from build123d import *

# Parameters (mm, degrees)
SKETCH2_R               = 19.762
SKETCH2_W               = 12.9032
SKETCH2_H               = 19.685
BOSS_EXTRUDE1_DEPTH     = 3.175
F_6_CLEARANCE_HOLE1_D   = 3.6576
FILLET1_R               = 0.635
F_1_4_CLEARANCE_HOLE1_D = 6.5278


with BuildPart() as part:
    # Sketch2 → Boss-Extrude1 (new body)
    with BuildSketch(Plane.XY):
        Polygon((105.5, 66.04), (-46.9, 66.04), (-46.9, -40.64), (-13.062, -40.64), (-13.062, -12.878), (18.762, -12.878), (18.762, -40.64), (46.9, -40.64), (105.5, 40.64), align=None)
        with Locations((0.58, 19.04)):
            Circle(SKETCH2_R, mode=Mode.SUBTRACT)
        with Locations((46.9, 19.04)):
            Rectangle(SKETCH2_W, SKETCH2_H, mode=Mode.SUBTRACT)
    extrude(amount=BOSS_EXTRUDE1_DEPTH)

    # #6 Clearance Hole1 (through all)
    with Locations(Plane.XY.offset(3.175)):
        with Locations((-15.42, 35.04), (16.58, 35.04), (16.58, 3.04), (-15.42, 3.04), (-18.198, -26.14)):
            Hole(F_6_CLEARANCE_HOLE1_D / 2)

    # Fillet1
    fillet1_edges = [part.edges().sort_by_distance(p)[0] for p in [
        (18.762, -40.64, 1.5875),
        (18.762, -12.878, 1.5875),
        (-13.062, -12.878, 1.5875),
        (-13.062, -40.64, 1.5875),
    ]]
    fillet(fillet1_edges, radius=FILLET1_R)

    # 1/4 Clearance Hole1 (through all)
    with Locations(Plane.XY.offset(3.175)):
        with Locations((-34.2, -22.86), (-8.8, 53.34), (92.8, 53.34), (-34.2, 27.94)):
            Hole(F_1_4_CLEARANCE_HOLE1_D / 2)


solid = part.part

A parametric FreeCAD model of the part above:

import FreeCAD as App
import Part
import Sketcher
from FreeCAD import Vector
Q = App.Units.Quantity


def edges_at(feature, points):
    """Names of the edges that pass closest to the given points."""
    edges = feature.Shape.Edges
    near = lambda p: min(range(len(edges)), key=lambda i: edges[i].distToShape(Part.Vertex(*p))[0])
    return sorted({f"Edge{near(p) + 1}" for p in points})


def add_polygon(sketch, points):
    """Adds a closed chain of lines whose ends are joined by coincident constraints."""
    first, n = sketch.GeometryCount, len(points)
    for a, b in zip(points, points[1:] + points[:1]):
        sketch.addGeometry(Part.LineSegment(App.Vector(*a, 0), App.Vector(*b, 0)), False)
    for i in range(n):
        sketch.addConstraint(Sketcher.Constraint("Coincident", first + i, 2, first + (i + 1) % n, 1))

doc = App.newDocument("Part")
body = doc.addObject("PartDesign::Body", "Body")

# Sketch on XY plane
sketch1 = doc.addObject("Sketcher::SketchObject", "Sketch")
body.addObject(sketch1)
sketch1.AttachmentSupport = (doc.XY_Plane, [""])
sketch1.MapMode = "FlatFace"
add_polygon(sketch1, [(105.5, 66.04), (-46.9, 66.04), (-46.9, -40.64), (-13.062, -40.64), (-13.062, -12.878), (18.762, -12.878), (18.762, -40.64), (46.9, -40.64), (105.5, 40.64)])  # lines 0-8
sketch1.addGeometry(Part.Circle(Vector(0.58, 19.04, 0), Vector(0, 0, 1), 19.762), False)  # 9
add_polygon(sketch1, [(53.3516, 9.1975), (40.4484, 9.1975), (40.4484, 28.8825), (53.3516, 28.8825)])  # lines 10-13
sketch1.addConstraint([
    Sketcher.Constraint("Horizontal", 0),
    Sketcher.Constraint("Vertical", 1),
    Sketcher.Constraint("Horizontal", 2),
    Sketcher.Constraint("Vertical", 3),
    Sketcher.Constraint("Horizontal", 4),
    Sketcher.Constraint("Vertical", 5),
    Sketcher.Constraint("Horizontal", 6),
    Sketcher.Constraint("Vertical", 8),
    Sketcher.Constraint("Horizontal", 10),
    Sketcher.Constraint("Vertical", 11),
    Sketcher.Constraint("Horizontal", 12),
    Sketcher.Constraint("Vertical", 13),
    Sketcher.Constraint("Symmetric", 1, 2, 6, 2, -2),
    Sketcher.Constraint("DistanceX", 0, 2, 0, 1, Q("6 in")),
    Sketcher.Constraint("DistanceY", 8, 1, 8, 2, Q("1 in")),
    Sketcher.Constraint("DistanceY", 1, 2, 1, 1, Q("4.2 in")),
    Sketcher.Constraint("DistanceY", -1, 1, 0, 2, Q("2.6 in")),
    Sketcher.Constraint("Diameter", 9, 39.524),
    Sketcher.Constraint("DistanceX", 10, 2, 10, 1, Q("0.508 in")),
    Sketcher.Constraint("DistanceY", 11, 1, 11, 2, Q("0.775 in")),
    Sketcher.Constraint("DistanceX", 10, 2, 6, 2, Q("0.254 in")),
    Sketcher.Constraint("DistanceX", 2, 1, 2, 2, 33.838),
    Sketcher.Constraint("DistanceX", 4, 1, 4, 2, 31.824),
    Sketcher.Constraint("DistanceX", 6, 1, 6, 2, 28.138),
    Sketcher.Constraint("DistanceY", 3, 1, 3, 2, 27.762),
    Sketcher.Constraint("DistanceY", 10, 2, 9, 3, Q("0.3875 in")),
    Sketcher.Constraint("DistanceX", -1, 1, 9, 3, 0.58),
    Sketcher.Constraint("DistanceY", -1, 1, 9, 3, 19.04),
])
pad1 = doc.addObject("PartDesign::Pad", "Pad")
body.addObject(pad1)
pad1.Profile = sketch1
pad1.Length = Q("0.125 in")

# Sketch on XY plane
sketch2 = doc.addObject("Sketcher::SketchObject", "Sketch001")
body.addObject(sketch2)
sketch2.AttachmentSupport = (doc.XY_Plane, [""])
sketch2.MapMode = "FlatFace"
sketch2.AttachmentOffset = App.Placement(Vector(0, 0, 0.125 * 25.4), App.Rotation())
sketch2.addGeometry([
    Part.Circle(Vector(-15.42, 35.04, 0), Vector(0, 0, 1), 1.8288),  # 0
    Part.Circle(Vector(16.58, 35.04, 0), Vector(0, 0, 1), 1.8288),  # 1
    Part.Circle(Vector(16.58, 3.04, 0), Vector(0, 0, 1), 1.8288),  # 2
    Part.Circle(Vector(-15.42, 3.04, 0), Vector(0, 0, 1), 1.8288),  # 3
    Part.Circle(Vector(-18.198, -26.14, 0), Vector(0, 0, 1), 1.8288),  # 4
], False)
sketch2.addConstraint([
    Sketcher.Constraint("Equal", 0, 1),
    Sketcher.Constraint("Equal", 1, 2),
    Sketcher.Constraint("Equal", 2, 3),
    Sketcher.Constraint("Equal", 3, 4),
    Sketcher.Constraint("Horizontal", 0, 3, 1, 3),
    Sketcher.Constraint("Horizontal", 2, 3, 3, 3),
    Sketcher.Constraint("Vertical", 1, 3, 2, 3),
    Sketcher.Constraint("Vertical", 0, 3, 3, 3),
    Sketcher.Constraint("Diameter", 0, Q("0.144 in")),
    Sketcher.Constraint("DistanceX", 0, 3, -1, 1, 15.42),
    Sketcher.Constraint("DistanceY", -1, 1, 0, 3, 35.04),
    Sketcher.Constraint("DistanceX", -1, 1, 1, 3, 16.58),
    Sketcher.Constraint("DistanceY", -1, 1, 2, 3, 3.04),
    Sketcher.Constraint("DistanceX", 4, 3, -1, 1, 18.198),
    Sketcher.Constraint("DistanceY", 4, 3, -1, 1, 26.14),
])
doc.recompute()
hole = doc.addObject("PartDesign::Hole", "Hole")
body.addObject(hole)
hole.Profile = sketch2
hole.ThreadType = "None"
hole.Diameter = Q("0.144 in")
hole.DepthType = "ThroughAll"
doc.recompute()

fillet = doc.addObject("PartDesign::Fillet", "Fillet")
body.addObject(fillet)
fillet.Base = (hole, edges_at(hole, [
    (18.762, -40.64, 1.587),
    (18.762, -12.878, 1.587),
    (-13.062, -12.878, 1.587),
    (-13.062, -40.64, 1.587),
]))
fillet.Radius = Q("0.025 in")

# Sketch on XY plane
sketch3 = doc.addObject("Sketcher::SketchObject", "Sketch002")
body.addObject(sketch3)
sketch3.AttachmentSupport = (doc.XY_Plane, [""])
sketch3.MapMode = "FlatFace"
sketch3.AttachmentOffset = App.Placement(Vector(0, 0, 0.125 * 25.4), App.Rotation())
sketch3.addGeometry([
    Part.Circle(Vector(-34.2, -22.86, 0), Vector(0, 0, 1), 3.2639),
    Part.Circle(Vector(-8.8, 53.34, 0), Vector(0, 0, 1), 3.2639),
    Part.Circle(Vector(92.8, 53.34, 0), Vector(0, 0, 1), 3.2639),
    Part.Circle(Vector(-34.2, 27.94, 0), Vector(0, 0, 1), 3.2639),
], False)
sketch3.addConstraint([
    Sketcher.Constraint("Equal", 0, 1),
    Sketcher.Constraint("Equal", 1, 2),
    Sketcher.Constraint("Equal", 2, 3),
    Sketcher.Constraint("Horizontal", 1, 3, 2, 3),
    Sketcher.Constraint("Vertical", 0, 3, 3, 3),
    Sketcher.Constraint("Diameter", 0, Q("0.257 in")),
    Sketcher.Constraint("DistanceX", 0, 3, 1, 3, Q("1 in")),
    Sketcher.Constraint("DistanceY", 0, 3, 1, 3, Q("3 in")),
    Sketcher.Constraint("DistanceX", 1, 3, 2, 3, Q("4 in")),
    Sketcher.Constraint("DistanceY", 3, 3, 1, 3, Q("1 in")),
    Sketcher.Constraint("DistanceY", 0, 3, -1, 1, Q("0.9 in")),
    Sketcher.Constraint("DistanceX", 0, 3, -1, 1, 34.2),
])
doc.recompute()
hole2 = doc.addObject("PartDesign::Hole", "Hole001")
body.addObject(hole2)
hole2.Profile = sketch3
hole2.ThreadType = "None"
hole2.Diameter = Q("0.257 in")
hole2.DepthType = "ThroughAll"

doc.recompute()
